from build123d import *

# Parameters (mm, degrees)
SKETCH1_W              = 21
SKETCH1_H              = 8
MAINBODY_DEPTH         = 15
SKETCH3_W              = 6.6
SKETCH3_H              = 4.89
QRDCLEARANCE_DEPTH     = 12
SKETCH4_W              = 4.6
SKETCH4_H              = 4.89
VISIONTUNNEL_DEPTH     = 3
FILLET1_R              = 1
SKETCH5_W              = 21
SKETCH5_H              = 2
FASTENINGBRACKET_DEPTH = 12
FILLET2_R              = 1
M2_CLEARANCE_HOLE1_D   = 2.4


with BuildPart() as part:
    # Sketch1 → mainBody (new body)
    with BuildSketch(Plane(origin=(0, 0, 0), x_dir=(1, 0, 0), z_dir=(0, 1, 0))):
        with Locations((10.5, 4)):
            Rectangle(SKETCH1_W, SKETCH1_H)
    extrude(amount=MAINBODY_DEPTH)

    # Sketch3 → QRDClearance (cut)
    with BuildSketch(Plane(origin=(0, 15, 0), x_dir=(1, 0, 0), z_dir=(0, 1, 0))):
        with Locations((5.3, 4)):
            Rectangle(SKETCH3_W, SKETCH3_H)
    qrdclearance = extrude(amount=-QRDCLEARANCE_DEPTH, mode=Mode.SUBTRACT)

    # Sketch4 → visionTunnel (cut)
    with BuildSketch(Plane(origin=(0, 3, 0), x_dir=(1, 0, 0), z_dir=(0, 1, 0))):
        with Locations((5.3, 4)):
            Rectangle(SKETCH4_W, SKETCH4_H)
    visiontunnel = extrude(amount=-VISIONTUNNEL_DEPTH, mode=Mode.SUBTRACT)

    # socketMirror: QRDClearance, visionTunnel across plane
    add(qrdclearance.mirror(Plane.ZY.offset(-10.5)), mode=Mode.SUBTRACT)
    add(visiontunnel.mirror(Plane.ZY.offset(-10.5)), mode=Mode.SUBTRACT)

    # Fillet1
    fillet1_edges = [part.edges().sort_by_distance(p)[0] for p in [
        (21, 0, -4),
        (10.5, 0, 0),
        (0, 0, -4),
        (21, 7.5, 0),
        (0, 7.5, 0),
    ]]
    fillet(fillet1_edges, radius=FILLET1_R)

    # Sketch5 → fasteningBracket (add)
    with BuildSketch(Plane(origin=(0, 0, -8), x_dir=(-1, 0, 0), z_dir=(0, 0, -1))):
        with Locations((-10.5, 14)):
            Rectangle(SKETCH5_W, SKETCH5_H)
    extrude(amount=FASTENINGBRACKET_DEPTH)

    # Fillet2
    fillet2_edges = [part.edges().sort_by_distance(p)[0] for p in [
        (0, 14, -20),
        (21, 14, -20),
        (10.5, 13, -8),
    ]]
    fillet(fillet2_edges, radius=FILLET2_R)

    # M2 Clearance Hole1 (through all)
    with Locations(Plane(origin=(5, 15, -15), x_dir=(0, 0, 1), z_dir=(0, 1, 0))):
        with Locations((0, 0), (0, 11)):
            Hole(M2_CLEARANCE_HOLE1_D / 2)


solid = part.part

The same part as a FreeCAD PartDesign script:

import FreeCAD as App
import Part
import Sketcher
from FreeCAD import Vector
Q = App.Units.Quantity


def edges_at(feature, points):
    """Names of the edges that pass closest to the given points."""
    edges = feature.Shape.Edges
    near = lambda p: min(range(len(edges)), key=lambda i: edges[i].distToShape(Part.Vertex(*p))[0])
    return sorted({f"Edge{near(p) + 1}" for p in points})

doc = App.newDocument("Part")
body = doc.addObject("PartDesign::Body", "Body")

# Sketch on XZ plane
sketch1 = doc.addObject("Sketcher::SketchObject", "Sketch")
body.addObject(sketch1)
sketch1.AttachmentSupport = (doc.XZ_Plane, [""])
sketch1.MapMode = "FlatFace"
sketch1.addGeometry([
    Part.LineSegment(Vector(0, -8, 0), Vector(0, 0, 0)),
    Part.LineSegment(Vector(0, 0, 0), Vector(21, 0, 0)),
    Part.LineSegment(Vector(21, 0, 0), Vector(21, -8, 0)),
    Part.LineSegment(Vector(21, -8, 0), Vector(0, -8, 0)),
], False)
sketch1.addConstraint([
    Sketcher.Constraint("Coincident", 0, 2, 1, 1),
    Sketcher.Constraint("Coincident", 1, 2, 2, 1),
    Sketcher.Constraint("Coincident", 2, 2, 3, 1),
    Sketcher.Constraint("Coincident", 3, 2, 0, 1),
    Sketcher.Constraint("Vertical", 0),
    Sketcher.Constraint("Horizontal", 1),
    Sketcher.Constraint("Vertical", 2),
    Sketcher.Constraint("Horizontal", 3),
    Sketcher.Constraint("Coincident", 0, 2, -1, 1),
    Sketcher.Constraint("DistanceX", 1, 1, 1, 2, Q("21 mm")),
    Sketcher.Constraint("DistanceY", 0, 1, 0, 2, Q("8 mm")),
])
pad1 = doc.addObject("PartDesign::Pad", "Pad")
body.addObject(pad1)
pad1.Profile = sketch1
pad1.Length = 15
pad1.Reversed = True

# Sketch on XZ plane
sketch2 = doc.addObject("Sketcher::SketchObject", "Sketch001")
body.addObject(sketch2)
sketch2.AttachmentSupport = (doc.XZ_Plane, [""])
sketch2.MapMode = "FlatFace"
sketch2.AttachmentOffset = App.Placement(Vector(0, 0, -15), App.Rotation())
sketch2.addGeometry([
    Part.LineSegment(Vector(2, -6.4, 0), Vector(2, -1.6, 0)),
    Part.LineSegment(Vector(2, -1.6, 0), Vector(8.6, -1.6, 0)),
    Part.LineSegment(Vector(8.6, -1.6, 0), Vector(8.6, -6.4, 0)),
    Part.LineSegment(Vector(8.6, -6.4, 0), Vector(2, -6.4, 0)),
], False)
sketch2.addConstraint([
    Sketcher.Constraint("Coincident", 0, 2, 1, 1),
    Sketcher.Constraint("Coincident", 1, 2, 2, 1),
    Sketcher.Constraint("Coincident", 2, 2, 3, 1),
    Sketcher.Constraint("Coincident", 3, 2, 0, 1),
    Sketcher.Constraint("Vertical", 0),
    Sketcher.Constraint("Horizontal", 1),
    Sketcher.Constraint("Vertical", 2),
    Sketcher.Constraint("Horizontal", 3),
    Sketcher.Constraint("DistanceX", 1, 1, 1, 2, Q("6.6 mm")),
    Sketcher.Constraint("DistanceX", -1, 1, 0, 2, Q("2 mm")),
    Sketcher.Constraint("DistanceY", 0, 1, 0, 2, Q("4.89 mm")),
    Sketcher.Constraint("DistanceY", 0, 2, -1, 1, Q("1.555 mm")),
])
pocket1 = doc.addObject("PartDesign::Pocket", "Pocket")
body.addObject(pocket1)
pocket1.Profile = sketch2
pocket1.Length = 12
pocket1.Reversed = True

# Sketch on XZ plane
sketch3 = doc.addObject("Sketcher::SketchObject", "Sketch002")
body.addObject(sketch3)
sketch3.AttachmentSupport = (doc.XZ_Plane, [""])
sketch3.MapMode = "FlatFace"
sketch3.AttachmentOffset = App.Placement(Vector(0, 0, -3), App.Rotation())
sketch3.addGeometry([
    Part.LineSegment(Vector(3, -6.4, 0), Vector(3, -1.6, 0)),
    Part.LineSegment(Vector(3, -1.6, 0), Vector(7.6, -1.6, 0)),
    Part.LineSegment(Vector(7.6, -1.6, 0), Vector(7.6, -6.4, 0)),
    Part.LineSegment(Vector(7.6, -6.4, 0), Vector(3, -6.4, 0)),
], False)
sketch3.addConstraint([
    Sketcher.Constraint("Coincident", 0, 2, 1, 1),
    Sketcher.Constraint("Coincident", 1, 2, 2, 1),
    Sketcher.Constraint("Coincident", 2, 2, 3, 1),
    Sketcher.Constraint("Coincident", 3, 2, 0, 1),
    Sketcher.Constraint("Vertical", 0),
    Sketcher.Constraint("Horizontal", 1),
    Sketcher.Constraint("Vertical", 2),
    Sketcher.Constraint("Horizontal", 3),
    Sketcher.Constraint("DistanceX", 1, 1, 1, 2, Q("4.6 mm")),
    Sketcher.Constraint("DistanceX", -1, 1, 0, 2, Q("3 mm")),
    Sketcher.Constraint("DistanceY", 0, 1, 0, 2, Q("4.89 mm")),
    Sketcher.Constraint("DistanceY", 0, 2, -1, 1, Q("1.555 mm")),
])
pocket2 = doc.addObject("PartDesign::Pocket", "Pocket001")
body.addObject(pocket2)
pocket2.Profile = sketch3
pocket2.Length = 3
pocket2.Reversed = True
doc.recompute()

datumplane = doc.addObject("PartDesign::Plane", "DatumPlane")
body.addObject(datumplane)
datumplane.AttachmentSupport = (doc.YZ_Plane, [""])
datumplane.MapMode = "FlatFace"
datumplane.AttachmentOffset = App.Placement(Vector(0, 0, 10.5), App.Rotation())
mirrored = doc.addObject("PartDesign::Mirrored", "Mirrored")
body.addObject(mirrored)
mirrored.Originals = [pocket1, pocket2]
mirrored.MirrorPlane = (datumplane, [""])
body.Tip = mirrored
doc.recompute()

fillet = doc.addObject("PartDesign::Fillet", "Fillet")
body.addObject(fillet)
fillet.Base = (mirrored, edges_at(mirrored, [
    (21, 0, -4),
    (10.5, 0, 0),
    (0, 0, -4),
    (21, 7.5, 0),
    (0, 7.5, 0),
]))
fillet.Radius = 1

# Sketch on XY plane
sketch4 = doc.addObject("Sketcher::SketchObject", "Sketch003")
body.addObject(sketch4)
sketch4.AttachmentSupport = (doc.XY_Plane, [""])
sketch4.MapMode = "FlatFace"
sketch4.AttachmentOffset = App.Placement(Vector(0, 0, -8), App.Rotation())
sketch4.addGeometry([
    Part.LineSegment(Vector(21, 15, 0), Vector(21, 13, 0)),
    Part.LineSegment(Vector(21, 13, 0), Vector(0, 13, 0)),
    Part.LineSegment(Vector(0, 13, 0), Vector(0, 15, 0)),
    Part.LineSegment(Vector(0, 15, 0), Vector(21, 15, 0)),
], False)
sketch4.addConstraint([
    Sketcher.Constraint("Coincident", 0, 2, 1, 1),
    Sketcher.Constraint("Coincident", 1, 2, 2, 1),
    Sketcher.Constraint("Coincident", 2, 2, 3, 1),
    Sketcher.Constraint("Coincident", 3, 2, 0, 1),
    Sketcher.Constraint("Vertical", 0),
    Sketcher.Constraint("Horizontal", 1),
    Sketcher.Constraint("Vertical", 2),
    Sketcher.Constraint("Horizontal", 3),
    Sketcher.Constraint("PointOnObject", 1, 2, -2),
    Sketcher.Constraint("DistanceX", 1, 2, 1, 1, Q("21 mm")),
    Sketcher.Constraint("DistanceY", 0, 2, 0, 1, Q("2 mm")),
    Sketcher.Constraint("DistanceY", -1, 1, 0, 2, Q("13 mm")),
])
pad2 = doc.addObject("PartDesign::Pad", "Pad001")
body.addObject(pad2)
pad2.Profile = sketch4
pad2.Length = 12
pad2.Reversed = True
doc.recompute()

fillet2 = doc.addObject("PartDesign::Fillet", "Fillet001")
body.addObject(fillet2)
fillet2.Base = (pad2, edges_at(pad2, [(0, 14, -20), (21, 14, -20), (10.5, 13, -8)]))
fillet2.Radius = 1

# Sketch on XZ plane
sketch5 = doc.addObject("Sketcher::SketchObject", "Sketch004")
body.addObject(sketch5)
sketch5.AttachmentSupport = (doc.XZ_Plane, [""])
sketch5.MapMode = "FlatFace"
sketch5.AttachmentOffset = App.Placement(Vector(0, 0, -15), App.Rotation())
sketch5.addGeometry([
    Part.Circle(Vector(5, -15, 0), Vector(0, 0, 1), 1.2),
    Part.Circle(Vector(16, -15, 0), Vector(0, 0, 1), 1.2),
], False)
sketch5.addConstraint([
    Sketcher.Constraint("Equal", 0, 1),
    Sketcher.Constraint("Horizontal", 0, 3, 1, 3),
    Sketcher.Constraint("Diameter", 0, Q("2.4 mm")),
    Sketcher.Constraint("DistanceX", -1, 1, 0, 3, Q("5 mm")),
    Sketcher.Constraint("DistanceY", 0, 3, -1, 1, Q("15 mm")),
    Sketcher.Constraint("DistanceX", -1, 1, 1, 3, Q("16 mm")),
])
doc.recompute()
hole = doc.addObject("PartDesign::Hole", "Hole")
body.addObject(hole)
hole.Profile = sketch5
hole.ThreadType = "None"
hole.Diameter = 2.4
hole.DepthType = "ThroughAll"
hole.Reversed = True

doc.recompute()
